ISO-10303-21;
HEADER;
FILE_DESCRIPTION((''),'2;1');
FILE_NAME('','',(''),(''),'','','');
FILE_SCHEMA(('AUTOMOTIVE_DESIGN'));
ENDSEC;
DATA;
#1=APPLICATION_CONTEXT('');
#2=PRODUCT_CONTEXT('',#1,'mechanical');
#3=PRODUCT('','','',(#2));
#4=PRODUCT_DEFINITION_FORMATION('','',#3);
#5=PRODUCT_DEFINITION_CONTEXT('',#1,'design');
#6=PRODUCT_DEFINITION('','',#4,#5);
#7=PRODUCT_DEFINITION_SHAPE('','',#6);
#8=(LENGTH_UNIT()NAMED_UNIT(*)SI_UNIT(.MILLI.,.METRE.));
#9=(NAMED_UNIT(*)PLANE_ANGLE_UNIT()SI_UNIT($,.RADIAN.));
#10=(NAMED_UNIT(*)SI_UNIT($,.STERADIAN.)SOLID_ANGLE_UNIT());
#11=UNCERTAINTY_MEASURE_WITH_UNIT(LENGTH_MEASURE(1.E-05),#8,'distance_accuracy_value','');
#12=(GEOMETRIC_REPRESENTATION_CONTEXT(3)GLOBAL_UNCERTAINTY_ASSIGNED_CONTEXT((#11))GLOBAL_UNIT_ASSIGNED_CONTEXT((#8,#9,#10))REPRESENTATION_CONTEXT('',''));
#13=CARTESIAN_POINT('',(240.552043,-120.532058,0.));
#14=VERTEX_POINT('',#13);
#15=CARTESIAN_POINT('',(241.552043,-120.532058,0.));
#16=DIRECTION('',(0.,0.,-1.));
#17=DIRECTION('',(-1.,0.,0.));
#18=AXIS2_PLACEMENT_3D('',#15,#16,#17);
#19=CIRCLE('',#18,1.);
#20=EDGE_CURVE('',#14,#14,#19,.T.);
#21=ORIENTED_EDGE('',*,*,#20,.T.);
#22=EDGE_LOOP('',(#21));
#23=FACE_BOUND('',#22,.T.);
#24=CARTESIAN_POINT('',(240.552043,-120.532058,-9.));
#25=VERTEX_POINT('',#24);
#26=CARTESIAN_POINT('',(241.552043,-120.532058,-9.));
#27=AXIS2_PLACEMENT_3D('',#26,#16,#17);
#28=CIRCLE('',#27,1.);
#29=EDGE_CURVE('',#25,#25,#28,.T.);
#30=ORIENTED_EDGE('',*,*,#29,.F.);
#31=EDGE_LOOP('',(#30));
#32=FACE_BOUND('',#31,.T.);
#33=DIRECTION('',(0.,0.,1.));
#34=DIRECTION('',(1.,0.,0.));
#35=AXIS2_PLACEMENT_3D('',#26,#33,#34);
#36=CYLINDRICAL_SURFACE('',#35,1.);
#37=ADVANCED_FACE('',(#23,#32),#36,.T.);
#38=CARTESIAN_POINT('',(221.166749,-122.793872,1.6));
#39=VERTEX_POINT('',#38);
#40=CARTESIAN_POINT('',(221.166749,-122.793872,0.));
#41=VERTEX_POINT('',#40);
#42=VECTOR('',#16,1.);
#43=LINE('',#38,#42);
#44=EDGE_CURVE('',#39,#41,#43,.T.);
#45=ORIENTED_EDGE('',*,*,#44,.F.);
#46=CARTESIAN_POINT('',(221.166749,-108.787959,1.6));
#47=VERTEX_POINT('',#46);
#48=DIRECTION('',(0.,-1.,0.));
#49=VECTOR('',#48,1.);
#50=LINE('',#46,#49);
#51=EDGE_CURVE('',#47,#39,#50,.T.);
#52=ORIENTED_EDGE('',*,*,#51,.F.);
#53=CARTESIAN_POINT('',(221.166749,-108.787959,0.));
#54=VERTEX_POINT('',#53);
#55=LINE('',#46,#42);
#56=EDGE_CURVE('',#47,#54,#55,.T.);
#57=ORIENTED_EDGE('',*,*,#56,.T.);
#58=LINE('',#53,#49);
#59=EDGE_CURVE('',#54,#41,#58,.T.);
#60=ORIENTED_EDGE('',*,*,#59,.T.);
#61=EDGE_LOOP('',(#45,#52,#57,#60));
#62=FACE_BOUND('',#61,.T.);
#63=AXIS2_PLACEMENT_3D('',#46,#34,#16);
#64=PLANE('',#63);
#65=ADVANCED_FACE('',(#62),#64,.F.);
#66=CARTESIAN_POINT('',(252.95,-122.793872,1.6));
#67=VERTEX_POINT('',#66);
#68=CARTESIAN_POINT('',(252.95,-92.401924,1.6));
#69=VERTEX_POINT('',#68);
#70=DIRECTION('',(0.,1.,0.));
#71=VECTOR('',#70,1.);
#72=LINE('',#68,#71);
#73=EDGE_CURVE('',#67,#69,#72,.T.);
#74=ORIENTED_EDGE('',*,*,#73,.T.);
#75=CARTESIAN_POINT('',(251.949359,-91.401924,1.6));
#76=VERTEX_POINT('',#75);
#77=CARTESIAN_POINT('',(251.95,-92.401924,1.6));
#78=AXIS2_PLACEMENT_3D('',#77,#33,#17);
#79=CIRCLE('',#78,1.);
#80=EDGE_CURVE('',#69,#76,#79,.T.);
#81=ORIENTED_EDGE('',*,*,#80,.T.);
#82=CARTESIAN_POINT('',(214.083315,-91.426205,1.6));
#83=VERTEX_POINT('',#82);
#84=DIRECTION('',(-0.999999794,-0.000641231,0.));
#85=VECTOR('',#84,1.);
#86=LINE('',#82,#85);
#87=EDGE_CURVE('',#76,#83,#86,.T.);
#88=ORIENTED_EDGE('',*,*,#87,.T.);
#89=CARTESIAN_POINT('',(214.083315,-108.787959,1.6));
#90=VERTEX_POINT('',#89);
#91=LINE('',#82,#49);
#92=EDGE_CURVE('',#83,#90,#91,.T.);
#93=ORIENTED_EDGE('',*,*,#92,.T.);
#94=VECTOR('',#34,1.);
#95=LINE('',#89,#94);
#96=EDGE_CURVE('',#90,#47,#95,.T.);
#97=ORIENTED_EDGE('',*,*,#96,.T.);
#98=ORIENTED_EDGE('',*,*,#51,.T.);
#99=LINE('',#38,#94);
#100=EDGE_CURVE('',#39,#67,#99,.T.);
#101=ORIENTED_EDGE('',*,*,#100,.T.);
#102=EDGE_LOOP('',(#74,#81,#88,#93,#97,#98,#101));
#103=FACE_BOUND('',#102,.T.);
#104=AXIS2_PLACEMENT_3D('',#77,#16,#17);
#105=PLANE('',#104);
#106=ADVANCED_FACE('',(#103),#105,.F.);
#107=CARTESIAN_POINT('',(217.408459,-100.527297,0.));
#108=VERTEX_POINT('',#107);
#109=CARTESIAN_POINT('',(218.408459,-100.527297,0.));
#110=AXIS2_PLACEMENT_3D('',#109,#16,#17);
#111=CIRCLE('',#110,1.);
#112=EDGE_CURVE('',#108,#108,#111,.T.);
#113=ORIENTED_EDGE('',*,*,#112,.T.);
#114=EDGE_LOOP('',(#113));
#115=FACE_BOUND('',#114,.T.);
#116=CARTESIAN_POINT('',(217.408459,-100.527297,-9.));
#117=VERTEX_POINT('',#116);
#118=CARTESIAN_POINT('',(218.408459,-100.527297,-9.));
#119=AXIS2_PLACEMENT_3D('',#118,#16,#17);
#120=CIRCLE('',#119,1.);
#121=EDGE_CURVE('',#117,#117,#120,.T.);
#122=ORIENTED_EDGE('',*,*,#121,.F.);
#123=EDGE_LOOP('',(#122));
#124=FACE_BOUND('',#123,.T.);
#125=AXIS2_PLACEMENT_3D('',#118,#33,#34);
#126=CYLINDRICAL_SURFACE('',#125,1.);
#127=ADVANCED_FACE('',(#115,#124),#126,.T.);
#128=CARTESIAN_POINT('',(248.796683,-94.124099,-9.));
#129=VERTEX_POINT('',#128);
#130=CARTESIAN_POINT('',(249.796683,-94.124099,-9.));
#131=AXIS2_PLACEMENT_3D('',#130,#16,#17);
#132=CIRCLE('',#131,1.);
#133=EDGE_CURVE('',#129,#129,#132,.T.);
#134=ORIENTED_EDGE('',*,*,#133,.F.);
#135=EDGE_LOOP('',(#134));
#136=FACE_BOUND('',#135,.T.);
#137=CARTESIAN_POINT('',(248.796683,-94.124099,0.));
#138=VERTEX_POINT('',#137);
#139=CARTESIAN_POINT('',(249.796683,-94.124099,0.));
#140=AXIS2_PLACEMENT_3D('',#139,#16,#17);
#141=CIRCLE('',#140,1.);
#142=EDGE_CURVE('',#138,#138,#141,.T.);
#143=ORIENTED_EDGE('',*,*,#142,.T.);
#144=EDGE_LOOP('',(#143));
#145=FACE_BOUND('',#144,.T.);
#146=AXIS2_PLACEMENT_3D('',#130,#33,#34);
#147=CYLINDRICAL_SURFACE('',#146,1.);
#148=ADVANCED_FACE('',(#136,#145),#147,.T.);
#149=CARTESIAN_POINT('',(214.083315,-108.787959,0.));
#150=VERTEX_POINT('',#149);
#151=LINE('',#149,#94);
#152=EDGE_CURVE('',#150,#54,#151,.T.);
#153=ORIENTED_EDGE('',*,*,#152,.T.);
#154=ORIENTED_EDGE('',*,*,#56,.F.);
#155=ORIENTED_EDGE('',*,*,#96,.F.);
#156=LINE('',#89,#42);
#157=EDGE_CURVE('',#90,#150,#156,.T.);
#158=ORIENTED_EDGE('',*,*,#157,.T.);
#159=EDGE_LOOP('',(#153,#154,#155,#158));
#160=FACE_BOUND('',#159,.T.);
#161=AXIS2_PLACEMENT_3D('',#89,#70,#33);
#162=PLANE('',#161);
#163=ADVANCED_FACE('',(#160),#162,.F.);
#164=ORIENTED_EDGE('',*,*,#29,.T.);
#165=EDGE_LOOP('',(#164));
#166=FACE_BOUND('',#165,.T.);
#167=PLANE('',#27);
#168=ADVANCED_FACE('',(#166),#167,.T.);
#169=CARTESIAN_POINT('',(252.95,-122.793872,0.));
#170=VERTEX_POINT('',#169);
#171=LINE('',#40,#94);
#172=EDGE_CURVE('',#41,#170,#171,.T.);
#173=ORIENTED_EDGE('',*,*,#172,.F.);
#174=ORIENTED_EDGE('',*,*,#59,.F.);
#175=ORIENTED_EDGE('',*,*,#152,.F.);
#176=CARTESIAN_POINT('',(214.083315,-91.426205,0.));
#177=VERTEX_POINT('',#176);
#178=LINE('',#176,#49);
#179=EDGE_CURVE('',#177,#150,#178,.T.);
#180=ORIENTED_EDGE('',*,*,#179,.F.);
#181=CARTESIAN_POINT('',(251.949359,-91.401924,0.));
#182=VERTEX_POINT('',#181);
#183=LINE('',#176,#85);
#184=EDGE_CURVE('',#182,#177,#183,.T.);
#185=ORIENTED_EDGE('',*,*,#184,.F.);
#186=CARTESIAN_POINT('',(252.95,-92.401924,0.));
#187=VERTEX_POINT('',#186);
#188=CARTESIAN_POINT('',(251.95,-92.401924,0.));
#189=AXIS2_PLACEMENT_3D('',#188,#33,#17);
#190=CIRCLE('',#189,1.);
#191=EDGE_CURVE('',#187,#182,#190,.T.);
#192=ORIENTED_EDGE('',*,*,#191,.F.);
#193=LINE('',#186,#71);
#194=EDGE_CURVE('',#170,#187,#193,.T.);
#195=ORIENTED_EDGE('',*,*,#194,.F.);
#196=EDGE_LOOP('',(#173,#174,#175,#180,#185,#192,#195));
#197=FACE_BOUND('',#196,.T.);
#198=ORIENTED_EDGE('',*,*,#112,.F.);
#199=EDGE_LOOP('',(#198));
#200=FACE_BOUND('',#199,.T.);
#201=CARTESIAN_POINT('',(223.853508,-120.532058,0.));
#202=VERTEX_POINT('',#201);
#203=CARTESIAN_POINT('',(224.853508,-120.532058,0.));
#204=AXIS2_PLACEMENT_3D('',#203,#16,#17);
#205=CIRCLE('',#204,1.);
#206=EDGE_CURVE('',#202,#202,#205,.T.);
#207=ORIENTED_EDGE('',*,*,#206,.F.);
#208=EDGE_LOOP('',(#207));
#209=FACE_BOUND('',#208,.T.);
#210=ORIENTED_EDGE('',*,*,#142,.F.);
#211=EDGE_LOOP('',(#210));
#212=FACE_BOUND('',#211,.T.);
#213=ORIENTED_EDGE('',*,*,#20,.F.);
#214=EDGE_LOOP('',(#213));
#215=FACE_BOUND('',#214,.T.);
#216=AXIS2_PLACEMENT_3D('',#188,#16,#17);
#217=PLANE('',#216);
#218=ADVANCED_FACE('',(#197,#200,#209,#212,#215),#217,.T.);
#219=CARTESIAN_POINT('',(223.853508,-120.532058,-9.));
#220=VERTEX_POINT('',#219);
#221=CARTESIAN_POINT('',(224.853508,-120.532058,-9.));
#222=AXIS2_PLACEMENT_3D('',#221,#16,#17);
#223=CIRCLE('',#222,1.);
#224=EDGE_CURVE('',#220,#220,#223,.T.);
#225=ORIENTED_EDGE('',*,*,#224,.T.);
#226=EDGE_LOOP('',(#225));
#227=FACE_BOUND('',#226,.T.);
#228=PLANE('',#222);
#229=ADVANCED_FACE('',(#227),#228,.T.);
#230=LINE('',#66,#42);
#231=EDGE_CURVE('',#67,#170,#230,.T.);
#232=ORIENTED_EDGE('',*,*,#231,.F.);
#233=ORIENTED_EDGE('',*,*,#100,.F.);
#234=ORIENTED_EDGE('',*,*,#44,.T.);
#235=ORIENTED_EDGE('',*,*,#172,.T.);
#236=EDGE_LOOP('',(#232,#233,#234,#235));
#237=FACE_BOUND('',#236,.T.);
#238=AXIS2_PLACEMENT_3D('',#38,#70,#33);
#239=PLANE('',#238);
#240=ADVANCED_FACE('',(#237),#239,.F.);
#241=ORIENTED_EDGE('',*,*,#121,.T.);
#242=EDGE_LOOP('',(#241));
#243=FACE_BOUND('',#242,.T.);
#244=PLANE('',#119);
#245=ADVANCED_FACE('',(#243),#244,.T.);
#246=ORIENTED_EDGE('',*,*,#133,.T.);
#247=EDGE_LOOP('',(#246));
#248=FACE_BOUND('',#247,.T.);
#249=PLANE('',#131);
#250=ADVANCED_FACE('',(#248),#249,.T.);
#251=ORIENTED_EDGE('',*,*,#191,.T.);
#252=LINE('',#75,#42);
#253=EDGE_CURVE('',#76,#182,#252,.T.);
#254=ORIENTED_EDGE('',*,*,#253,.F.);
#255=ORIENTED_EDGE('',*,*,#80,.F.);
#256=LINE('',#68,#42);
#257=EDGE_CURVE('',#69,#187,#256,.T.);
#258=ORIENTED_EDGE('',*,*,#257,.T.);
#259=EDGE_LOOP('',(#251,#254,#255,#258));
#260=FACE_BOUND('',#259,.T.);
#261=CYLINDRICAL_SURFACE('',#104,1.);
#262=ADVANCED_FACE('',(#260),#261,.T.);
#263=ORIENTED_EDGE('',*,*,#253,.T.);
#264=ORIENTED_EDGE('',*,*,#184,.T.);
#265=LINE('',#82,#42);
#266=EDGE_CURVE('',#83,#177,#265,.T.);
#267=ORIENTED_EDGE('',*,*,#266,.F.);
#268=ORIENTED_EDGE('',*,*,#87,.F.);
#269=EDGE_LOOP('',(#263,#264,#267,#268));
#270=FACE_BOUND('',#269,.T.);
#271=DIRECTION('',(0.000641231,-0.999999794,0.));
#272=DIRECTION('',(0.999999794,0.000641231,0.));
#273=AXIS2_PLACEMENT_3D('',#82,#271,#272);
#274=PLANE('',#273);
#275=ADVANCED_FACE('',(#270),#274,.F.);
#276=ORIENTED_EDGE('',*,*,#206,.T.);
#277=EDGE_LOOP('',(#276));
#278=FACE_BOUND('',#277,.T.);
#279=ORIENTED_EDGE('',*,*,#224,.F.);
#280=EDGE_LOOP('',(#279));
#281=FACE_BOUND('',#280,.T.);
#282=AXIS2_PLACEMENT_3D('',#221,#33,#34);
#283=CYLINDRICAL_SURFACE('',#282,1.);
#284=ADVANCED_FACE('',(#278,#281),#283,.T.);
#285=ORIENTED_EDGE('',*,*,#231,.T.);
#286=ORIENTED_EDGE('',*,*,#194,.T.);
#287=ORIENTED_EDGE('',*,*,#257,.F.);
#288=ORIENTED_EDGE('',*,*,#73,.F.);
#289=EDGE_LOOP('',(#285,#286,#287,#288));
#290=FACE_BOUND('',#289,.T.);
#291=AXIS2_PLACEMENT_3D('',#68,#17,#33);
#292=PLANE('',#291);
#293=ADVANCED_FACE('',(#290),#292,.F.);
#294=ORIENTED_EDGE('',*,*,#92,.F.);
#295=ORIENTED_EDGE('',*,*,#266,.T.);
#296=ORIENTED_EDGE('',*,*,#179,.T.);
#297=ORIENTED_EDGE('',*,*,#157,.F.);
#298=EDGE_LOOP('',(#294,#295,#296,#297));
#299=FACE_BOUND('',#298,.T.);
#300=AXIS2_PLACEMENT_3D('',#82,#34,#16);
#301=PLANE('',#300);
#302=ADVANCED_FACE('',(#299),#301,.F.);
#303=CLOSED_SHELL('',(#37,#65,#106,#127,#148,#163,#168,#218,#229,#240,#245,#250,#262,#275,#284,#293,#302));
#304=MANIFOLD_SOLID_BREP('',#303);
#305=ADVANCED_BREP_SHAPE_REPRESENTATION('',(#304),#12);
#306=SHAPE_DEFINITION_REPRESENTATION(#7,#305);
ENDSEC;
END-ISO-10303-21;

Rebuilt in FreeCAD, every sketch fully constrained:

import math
import FreeCAD as App
import Part
import Sketcher
Q = App.Units.Quantity

doc = App.newDocument("Part")
body = doc.addObject("PartDesign::Body", "Body")

# Sketch on XY plane
sketch1 = doc.addObject("Sketcher::SketchObject", "Sketch")
body.addObject(sketch1)
sketch1.AttachmentSupport = (doc.XY_Plane, [""])
sketch1.MapMode = "FlatFace"
sketch1.addGeometry([
    Part.LineSegment(App.Vector(214.083315, -91.426205, 0), App.Vector(214.083315, -108.787959, 0)),  # 0
    Part.LineSegment(App.Vector(214.083315, -108.787959, 0), App.Vector(221.166749, -108.787959, 0)),  # 1
    Part.LineSegment(App.Vector(221.166749, -108.787959, 0), App.Vector(221.166749, -122.793872, 0)),  # 2
    Part.LineSegment(App.Vector(221.166749, -122.793872, 0), App.Vector(252.95, -122.793872, 0)),  # 3
    Part.LineSegment(App.Vector(252.95, -122.793872, 0), App.Vector(252.95, -92.401924, 0)),  # 4
    Part.ArcOfCircle(Part.Circle(App.Vector(251.95, -92.401924, 0), App.Vector(0, 0, 1), 1), math.radians(-0.000006), math.radians(90.03674)),  # 5
    Part.LineSegment(App.Vector(251.949359, -91.401924, 0), App.Vector(214.083315, -91.426205, 0)),  # 6
], False)
sketch1.addConstraint([
    Sketcher.Constraint("Coincident", 0, 2, 1, 1),
    Sketcher.Constraint("Coincident", 1, 2, 2, 1),
    Sketcher.Constraint("Coincident", 2, 2, 3, 1),
    Sketcher.Constraint("Coincident", 3, 2, 4, 1),
    Sketcher.Constraint("Tangent", 4, 2, 5, 1),
    Sketcher.Constraint("Tangent", 5, 2, 6, 1),
    Sketcher.Constraint("Coincident", 6, 2, 0, 1),
    Sketcher.Constraint("Vertical", 0),
    Sketcher.Constraint("Horizontal", 1),
    Sketcher.Constraint("Vertical", 2),
    Sketcher.Constraint("Horizontal", 3),
    Sketcher.Constraint("Vertical", 4),
    Sketcher.Constraint("Radius", 5, Q("1 mm")),
    Sketcher.Constraint("DistanceX", -1, 1, 5, 3, Q("251.95 mm")),
    Sketcher.Constraint("DistanceX", 3, 1, 3, 2, Q("31.783251 mm")),
    Sketcher.Constraint("Distance", 6, Q("37.866052 mm")),
    Sketcher.Constraint("DistanceX", 1, 1, 1, 2, Q("7.083434 mm")),
    Sketcher.Constraint("DistanceY", 0, 2, 0, 1, Q("17.361754 mm")),
    Sketcher.Constraint("DistanceY", 2, 2, 2, 1, Q("14.005912 mm")),
    Sketcher.Constraint("DistanceY", 0, 2, -1, 1, Q("108.787959 mm")),
])
pad1 = doc.addObject("PartDesign::Pad", "Pad")
body.addObject(pad1)
pad1.Profile = sketch1
pad1.Length = 1.6

# Sketch on XY plane
sketch2 = doc.addObject("Sketcher::SketchObject", "Sketch001")
body.addObject(sketch2)
sketch2.AttachmentSupport = (doc.XY_Plane, [""])
sketch2.MapMode = "FlatFace"
sketch2.addGeometry([
    Part.Circle(App.Vector(224.853508, -120.532058, 0), App.Vector(0, 0, 1), 1),
    Part.Circle(App.Vector(218.408459, -100.527297, 0), App.Vector(0, 0, 1), 1),
    Part.Circle(App.Vector(241.552043, -120.532058, 0), App.Vector(0, 0, 1), 1),
    Part.Circle(App.Vector(249.796683, -94.124099, 0), App.Vector(0, 0, 1), 1),
], False)
sketch2.addConstraint([
    Sketcher.Constraint("Equal", 0, 1),
    Sketcher.Constraint("Equal", 1, 2),
    Sketcher.Constraint("Equal", 2, 3),
    Sketcher.Constraint("Horizontal", 0, 3, 2, 3),
    Sketcher.Constraint("Diameter", 0, Q("2 mm")),
    Sketcher.Constraint("DistanceY", 3, 3, -1, 1, Q("94.124099 mm")),
    Sketcher.Constraint("DistanceX", -1, 1, 1, 3, Q("218.408459 mm")),
    Sketcher.Constraint("DistanceX", 1, 3, 0, 3, Q("6.445049 mm")),
    Sketcher.Constraint("DistanceY", 0, 3, 1, 3, Q("20.004761 mm")),
    Sketcher.Constraint("DistanceX", 2, 3, 3, 3, Q("8.24464 mm")),
    Sketcher.Constraint("DistanceY", 2, 3, 3, 3, Q("26.407959 mm")),
    Sketcher.Constraint("DistanceX", -1, 1, 2, 3, Q("241.552043 mm")),
])
pad2 = doc.addObject("PartDesign::Pad", "Pad001")
body.addObject(pad2)
pad2.Profile = sketch2
pad2.Length = 9
pad2.Reversed = True

doc.recompute()
